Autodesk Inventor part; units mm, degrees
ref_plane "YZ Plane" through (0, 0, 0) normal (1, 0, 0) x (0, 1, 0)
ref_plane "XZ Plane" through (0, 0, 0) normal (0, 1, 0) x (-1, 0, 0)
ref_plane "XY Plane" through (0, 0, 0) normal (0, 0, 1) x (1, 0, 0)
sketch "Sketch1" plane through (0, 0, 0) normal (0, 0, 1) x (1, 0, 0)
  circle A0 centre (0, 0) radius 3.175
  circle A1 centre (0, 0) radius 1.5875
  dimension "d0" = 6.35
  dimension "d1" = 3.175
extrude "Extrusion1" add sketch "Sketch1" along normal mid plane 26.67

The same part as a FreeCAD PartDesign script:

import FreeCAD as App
import Part
import Sketcher
Q = App.Units.Quantity

doc = App.newDocument("Part")
body = doc.addObject("PartDesign::Body", "Body")

# Sketch on XY plane
sketch1 = body.newObject("Sketcher::SketchObject", "Sketch")
sketch1.AttachmentSupport = (doc.getObject("XY_Plane"), [""])
sketch1.MapMode = "FlatFace"
sketch1.addGeometry([
    Part.Circle(App.Vector(0, 0, 0), App.Vector(0, 0, 1), 3.2),
    Part.Circle(App.Vector(0, 0, 0), App.Vector(0, 0, 1), 1.6),
], False)
sketch1.addConstraint([
    Sketcher.Constraint("Coincident", 0, 3, -1, 1),
    Sketcher.Constraint("Coincident", 1, 3, -1, 1),
    Sketcher.Constraint("Diameter", 0, Q("0.25 in")),
    Sketcher.Constraint("Diameter", 1, Q("0.125 in")),
])
pad1 = body.newObject("PartDesign::Pad", "Pad")
pad1.Profile = sketch1
pad1.Length = Q("1.05 in")
pad1.Midplane = True

doc.recompute()
